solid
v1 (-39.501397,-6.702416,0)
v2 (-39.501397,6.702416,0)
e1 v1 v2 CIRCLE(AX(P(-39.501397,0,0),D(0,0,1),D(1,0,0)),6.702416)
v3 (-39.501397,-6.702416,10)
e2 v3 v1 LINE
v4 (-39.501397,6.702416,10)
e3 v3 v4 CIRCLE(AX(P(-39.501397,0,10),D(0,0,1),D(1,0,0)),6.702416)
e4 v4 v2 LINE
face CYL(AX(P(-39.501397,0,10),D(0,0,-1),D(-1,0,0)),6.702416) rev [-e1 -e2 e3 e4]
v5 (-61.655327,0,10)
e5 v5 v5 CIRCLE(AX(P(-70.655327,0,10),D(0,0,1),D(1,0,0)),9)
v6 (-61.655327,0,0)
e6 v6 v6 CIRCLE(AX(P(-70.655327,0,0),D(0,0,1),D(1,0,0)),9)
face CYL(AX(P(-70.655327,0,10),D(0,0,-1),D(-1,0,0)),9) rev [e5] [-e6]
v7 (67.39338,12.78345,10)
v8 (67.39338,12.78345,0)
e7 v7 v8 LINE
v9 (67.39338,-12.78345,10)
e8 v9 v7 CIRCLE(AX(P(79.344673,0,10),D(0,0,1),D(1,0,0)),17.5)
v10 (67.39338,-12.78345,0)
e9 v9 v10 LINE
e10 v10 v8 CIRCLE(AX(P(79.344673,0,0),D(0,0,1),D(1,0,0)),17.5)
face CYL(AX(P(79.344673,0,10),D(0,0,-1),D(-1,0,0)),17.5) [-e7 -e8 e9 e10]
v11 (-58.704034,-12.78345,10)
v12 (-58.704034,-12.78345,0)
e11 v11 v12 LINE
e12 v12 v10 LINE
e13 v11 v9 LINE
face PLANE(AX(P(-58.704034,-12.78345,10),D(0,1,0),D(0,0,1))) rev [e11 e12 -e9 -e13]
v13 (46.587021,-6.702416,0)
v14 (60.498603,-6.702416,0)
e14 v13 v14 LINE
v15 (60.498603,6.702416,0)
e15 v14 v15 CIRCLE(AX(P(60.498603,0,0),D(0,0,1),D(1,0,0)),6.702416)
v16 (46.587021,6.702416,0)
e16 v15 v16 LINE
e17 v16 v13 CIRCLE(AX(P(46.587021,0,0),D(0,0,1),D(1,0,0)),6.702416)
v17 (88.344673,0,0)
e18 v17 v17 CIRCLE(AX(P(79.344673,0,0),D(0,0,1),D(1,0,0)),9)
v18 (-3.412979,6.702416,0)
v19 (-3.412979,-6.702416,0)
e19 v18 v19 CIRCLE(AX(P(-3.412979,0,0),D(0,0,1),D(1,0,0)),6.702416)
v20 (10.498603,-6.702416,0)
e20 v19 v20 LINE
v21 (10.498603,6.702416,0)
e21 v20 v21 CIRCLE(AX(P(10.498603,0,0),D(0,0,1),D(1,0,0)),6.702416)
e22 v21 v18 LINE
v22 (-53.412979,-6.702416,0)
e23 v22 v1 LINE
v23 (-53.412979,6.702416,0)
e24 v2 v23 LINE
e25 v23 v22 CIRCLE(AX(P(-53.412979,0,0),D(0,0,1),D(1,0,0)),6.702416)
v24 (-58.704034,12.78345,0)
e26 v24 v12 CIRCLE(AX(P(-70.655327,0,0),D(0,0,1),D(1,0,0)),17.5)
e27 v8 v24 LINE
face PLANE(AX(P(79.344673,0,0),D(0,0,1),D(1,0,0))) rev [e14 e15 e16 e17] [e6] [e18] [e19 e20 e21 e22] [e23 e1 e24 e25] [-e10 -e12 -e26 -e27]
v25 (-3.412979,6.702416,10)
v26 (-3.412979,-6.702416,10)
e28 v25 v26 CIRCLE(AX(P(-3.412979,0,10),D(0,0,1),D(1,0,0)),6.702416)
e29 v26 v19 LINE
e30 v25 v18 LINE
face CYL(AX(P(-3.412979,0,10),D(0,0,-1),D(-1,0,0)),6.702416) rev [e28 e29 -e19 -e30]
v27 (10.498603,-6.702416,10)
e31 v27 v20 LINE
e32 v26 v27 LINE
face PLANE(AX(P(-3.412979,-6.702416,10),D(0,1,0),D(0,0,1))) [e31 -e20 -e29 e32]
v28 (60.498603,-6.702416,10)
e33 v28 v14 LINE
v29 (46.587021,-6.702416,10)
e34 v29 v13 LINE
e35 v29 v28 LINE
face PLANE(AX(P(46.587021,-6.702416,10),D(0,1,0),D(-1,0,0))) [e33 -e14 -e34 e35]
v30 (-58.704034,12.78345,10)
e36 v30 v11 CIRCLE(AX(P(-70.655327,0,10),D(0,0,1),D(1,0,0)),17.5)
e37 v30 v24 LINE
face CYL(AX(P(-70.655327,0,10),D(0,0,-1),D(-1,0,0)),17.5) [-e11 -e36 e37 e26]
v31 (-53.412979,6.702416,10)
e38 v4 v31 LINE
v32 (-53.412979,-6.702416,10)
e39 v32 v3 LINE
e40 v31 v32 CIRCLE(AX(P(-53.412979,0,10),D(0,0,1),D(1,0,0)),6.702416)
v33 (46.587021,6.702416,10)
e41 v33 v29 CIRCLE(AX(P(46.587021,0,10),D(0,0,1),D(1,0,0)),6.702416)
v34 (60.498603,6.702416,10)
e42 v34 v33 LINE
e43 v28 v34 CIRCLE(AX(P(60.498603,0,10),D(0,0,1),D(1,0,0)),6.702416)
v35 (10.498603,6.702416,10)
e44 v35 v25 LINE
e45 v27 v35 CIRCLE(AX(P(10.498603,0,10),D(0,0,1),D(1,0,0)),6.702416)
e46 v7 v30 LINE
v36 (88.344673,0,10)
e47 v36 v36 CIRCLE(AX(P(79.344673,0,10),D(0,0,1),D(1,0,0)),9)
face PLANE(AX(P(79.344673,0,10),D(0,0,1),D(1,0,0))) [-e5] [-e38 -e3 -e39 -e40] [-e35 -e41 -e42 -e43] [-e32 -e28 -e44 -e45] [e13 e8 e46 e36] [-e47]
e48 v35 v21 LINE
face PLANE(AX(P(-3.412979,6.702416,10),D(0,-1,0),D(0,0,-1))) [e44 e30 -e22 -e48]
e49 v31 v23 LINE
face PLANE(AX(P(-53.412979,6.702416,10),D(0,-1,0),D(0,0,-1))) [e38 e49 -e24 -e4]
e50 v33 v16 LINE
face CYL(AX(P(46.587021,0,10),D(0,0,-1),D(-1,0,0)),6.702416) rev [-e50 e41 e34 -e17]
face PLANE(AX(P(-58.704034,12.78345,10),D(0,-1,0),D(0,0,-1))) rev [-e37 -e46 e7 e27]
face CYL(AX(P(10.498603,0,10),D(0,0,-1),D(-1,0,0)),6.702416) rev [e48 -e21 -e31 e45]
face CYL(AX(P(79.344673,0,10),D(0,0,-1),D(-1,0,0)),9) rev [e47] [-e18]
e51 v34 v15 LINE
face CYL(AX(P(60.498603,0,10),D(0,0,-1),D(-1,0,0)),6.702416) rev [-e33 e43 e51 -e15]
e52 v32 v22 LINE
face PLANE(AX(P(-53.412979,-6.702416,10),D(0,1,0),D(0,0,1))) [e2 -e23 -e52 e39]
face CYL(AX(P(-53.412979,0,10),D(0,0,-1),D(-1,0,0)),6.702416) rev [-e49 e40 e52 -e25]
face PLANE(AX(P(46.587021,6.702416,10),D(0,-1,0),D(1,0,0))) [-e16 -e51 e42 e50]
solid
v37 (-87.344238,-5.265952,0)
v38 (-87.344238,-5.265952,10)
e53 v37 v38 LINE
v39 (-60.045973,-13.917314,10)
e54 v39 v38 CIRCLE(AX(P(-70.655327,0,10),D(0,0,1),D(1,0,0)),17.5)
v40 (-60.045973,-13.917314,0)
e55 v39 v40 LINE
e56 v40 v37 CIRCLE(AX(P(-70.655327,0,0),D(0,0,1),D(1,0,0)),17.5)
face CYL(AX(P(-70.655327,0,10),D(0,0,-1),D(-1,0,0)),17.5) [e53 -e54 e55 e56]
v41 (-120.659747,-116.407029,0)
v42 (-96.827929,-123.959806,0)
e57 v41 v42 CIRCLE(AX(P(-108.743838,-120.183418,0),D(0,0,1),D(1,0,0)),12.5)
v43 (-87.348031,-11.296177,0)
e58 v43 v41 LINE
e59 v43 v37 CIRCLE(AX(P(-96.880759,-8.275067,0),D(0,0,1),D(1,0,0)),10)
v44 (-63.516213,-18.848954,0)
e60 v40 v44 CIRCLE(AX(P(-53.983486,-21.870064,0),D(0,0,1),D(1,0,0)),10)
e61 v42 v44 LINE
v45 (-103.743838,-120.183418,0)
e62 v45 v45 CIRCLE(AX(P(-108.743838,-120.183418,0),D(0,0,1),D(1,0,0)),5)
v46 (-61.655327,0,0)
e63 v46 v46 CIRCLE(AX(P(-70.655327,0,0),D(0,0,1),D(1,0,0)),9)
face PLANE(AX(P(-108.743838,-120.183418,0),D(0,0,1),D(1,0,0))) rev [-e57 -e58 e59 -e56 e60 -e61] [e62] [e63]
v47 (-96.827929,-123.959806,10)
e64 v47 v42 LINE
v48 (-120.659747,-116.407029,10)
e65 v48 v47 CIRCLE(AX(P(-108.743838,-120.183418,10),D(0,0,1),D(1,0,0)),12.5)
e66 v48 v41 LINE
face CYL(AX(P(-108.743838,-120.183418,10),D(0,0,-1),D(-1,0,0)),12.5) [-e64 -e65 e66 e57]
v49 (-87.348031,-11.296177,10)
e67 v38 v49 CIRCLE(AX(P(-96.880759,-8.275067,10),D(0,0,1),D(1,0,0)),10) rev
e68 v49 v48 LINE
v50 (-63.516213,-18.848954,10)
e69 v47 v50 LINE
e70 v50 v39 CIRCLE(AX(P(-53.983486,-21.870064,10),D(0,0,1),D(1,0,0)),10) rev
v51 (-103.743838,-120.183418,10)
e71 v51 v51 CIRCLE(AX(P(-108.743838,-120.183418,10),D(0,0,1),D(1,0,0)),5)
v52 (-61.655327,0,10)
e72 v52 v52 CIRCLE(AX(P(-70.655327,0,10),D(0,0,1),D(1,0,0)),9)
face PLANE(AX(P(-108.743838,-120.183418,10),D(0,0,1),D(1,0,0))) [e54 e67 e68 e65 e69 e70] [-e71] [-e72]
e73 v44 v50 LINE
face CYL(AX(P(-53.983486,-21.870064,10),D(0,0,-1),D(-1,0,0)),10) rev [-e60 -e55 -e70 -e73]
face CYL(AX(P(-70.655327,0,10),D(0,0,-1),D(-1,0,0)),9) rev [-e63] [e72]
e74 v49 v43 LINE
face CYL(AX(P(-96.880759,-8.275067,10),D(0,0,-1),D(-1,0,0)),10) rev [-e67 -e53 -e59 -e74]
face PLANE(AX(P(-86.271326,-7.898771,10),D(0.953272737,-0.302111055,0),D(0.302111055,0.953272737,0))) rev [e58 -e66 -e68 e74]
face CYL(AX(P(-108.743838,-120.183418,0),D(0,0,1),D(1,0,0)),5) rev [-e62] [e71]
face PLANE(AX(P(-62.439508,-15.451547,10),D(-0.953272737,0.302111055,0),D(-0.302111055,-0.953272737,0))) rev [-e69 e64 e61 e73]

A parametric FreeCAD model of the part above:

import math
import FreeCAD as App
import Part
import Sketcher

V = App.Vector
Q = App.Units.Quantity


def edges_at(feature, points):
    """Names of the edges that pass closest to the given points."""
    edges = feature.Shape.Edges
    near = lambda p: min(range(len(edges)), key=lambda i: edges[i].distToShape(Part.Vertex(*p))[0])
    return sorted({f"Edge{near(p) + 1}" for p in points})

doc = App.newDocument("Part")
body = doc.addObject("PartDesign::Body", "Body")

# Sketch on XY plane
sketch1 = body.newObject("Sketcher::SketchObject", "Sketch")
sketch1.AttachmentSupport = (doc.getObject("XY_Plane"), [""])
sketch1.MapMode = "FlatFace"
sketch1.addGeometry([
    Part.LineSegment(V(67, 13, 0), V(-59, 13, 0)),  # 0
    Part.ArcOfCircle(Part.Circle(V(-71, 0, 0), V(0, 0, 1), 18), math.radians(47), math.radians(313)),  # 1
    Part.LineSegment(V(-59, -13, 0), V(67, -13, 0)),  # 2
    Part.ArcOfCircle(Part.Circle(V(79, 0, 0), V(0, 0, 1), 18), math.radians(-133), math.radians(133)),  # 3
    Part.Circle(V(79, 0, 0), V(0, 0, 1), 9),  # 4
    Part.LineSegment(V(47, 7, 0), V(60, 7, 0)),  # 5
    Part.ArcOfCircle(Part.Circle(V(60, 0, 0), V(0, 0, 1), 7), math.radians(-90), math.radians(90)),  # 6
    Part.LineSegment(V(60, -7, 0), V(47, -7, 0)),  # 7
    Part.ArcOfCircle(Part.Circle(V(47, 0, 0), V(0, 0, 1), 7), math.radians(90), math.radians(270)),  # 8
    Part.LineSegment(V(-3, 7, 0), V(10, 7, 0)),  # 9
    Part.ArcOfCircle(Part.Circle(V(10, 0, 0), V(0, 0, 1), 7), math.radians(-90), math.radians(90)),  # 10
    Part.LineSegment(V(10, -7, 0), V(-3, -7, 0)),  # 11
    Part.ArcOfCircle(Part.Circle(V(-3, 0, 0), V(0, 0, 1), 7), math.radians(90), math.radians(270)),  # 12
    Part.LineSegment(V(-53, 7, 0), V(-40, 7, 0)),  # 13
    Part.ArcOfCircle(Part.Circle(V(-40, 0, 0), V(0, 0, 1), 7), math.radians(-90), math.radians(90)),  # 14
    Part.LineSegment(V(-40, -7, 0), V(-53, -7, 0)),  # 15
    Part.ArcOfCircle(Part.Circle(V(-53, 0, 0), V(0, 0, 1), 7), math.radians(90), math.radians(270)),  # 16
    Part.Circle(V(-71, 0, 0), V(0, 0, 1), 9),  # 17
], False)
sketch1.addConstraint([
    Sketcher.Constraint("Coincident", 0, 2, 1, 1),
    Sketcher.Constraint("Coincident", 1, 2, 2, 1),
    Sketcher.Constraint("Coincident", 2, 2, 3, 1),
    Sketcher.Constraint("Coincident", 3, 2, 0, 1),
    Sketcher.Constraint("Tangent", 5, 2, 6, 2),
    Sketcher.Constraint("Tangent", 6, 1, 7, 1),
    Sketcher.Constraint("Tangent", 7, 2, 8, 2),
    Sketcher.Constraint("Tangent", 8, 1, 5, 1),
    Sketcher.Constraint("Tangent", 9, 2, 10, 2),
    Sketcher.Constraint("Tangent", 10, 1, 11, 1),
    Sketcher.Constraint("Tangent", 11, 2, 12, 2),
    Sketcher.Constraint("Tangent", 12, 1, 9, 1),
    Sketcher.Constraint("Tangent", 13, 2, 14, 2),
    Sketcher.Constraint("Tangent", 14, 1, 15, 1),
    Sketcher.Constraint("Tangent", 15, 2, 16, 2),
    Sketcher.Constraint("Tangent", 16, 1, 13, 1),
    Sketcher.Constraint("Horizontal", 0),
    Sketcher.Constraint("Horizontal", 2),
    Sketcher.Constraint("Horizontal", 5),
    Sketcher.Constraint("Horizontal", 7),
    Sketcher.Constraint("Horizontal", 9),
    Sketcher.Constraint("Horizontal", 11),
    Sketcher.Constraint("Horizontal", 13),
    Sketcher.Constraint("Horizontal", 15),
    Sketcher.Constraint("Coincident", 4, 3, 3, 3),
    Sketcher.Constraint("Coincident", 17, 3, 1, 3),
    Sketcher.Constraint("Equal", 1, 3),
    Sketcher.Constraint("Equal", 8, 10),
    Sketcher.Constraint("Equal", 12, 14),
    Sketcher.Constraint("Equal", 4, 17),
    Sketcher.Constraint("Symmetric", 0, 2, 1, 2, -1),
    Sketcher.Constraint("PointOnObject", 3, 3, -1),
    Sketcher.Constraint("PointOnObject", 6, 3, -1),
    Sketcher.Constraint("PointOnObject", 10, 3, -1),
    Sketcher.Constraint("PointOnObject", 14, 3, -1),
    Sketcher.Constraint("Equal", 7, 9),
    Sketcher.Constraint("Equal", 11, 13),
    Sketcher.Constraint("Diameter", 4, Q("18 mm")),
    Sketcher.Constraint("Radius", 1, Q("17.5 mm")),
    Sketcher.Constraint("DistanceX", 1, 3, 3, 3, Q("150 mm")),
    Sketcher.Constraint("DistanceX", 10, 3, 6, 3, Q("50 mm")),
    Sketcher.Constraint("DistanceX", 14, 3, 10, 3, Q("50 mm")),
    Sketcher.Constraint("Radius", 6, Q("6.702416 mm")),
    Sketcher.Constraint("DistanceX", 5, 1, 5, 2, Q("13.911582 mm")),
    Sketcher.Constraint("DistanceY", 1, 2, 0, 2, Q("25.566901 mm")),
    Sketcher.Constraint("DistanceX", -1, 1, 8, 3, Q("46.587021 mm")),
    Sketcher.Constraint("DistanceX", -1, 1, 2, 2, Q("67.39338 mm")),
])
pad1 = body.newObject("PartDesign::Pad", "Pad")
pad1.Profile = sketch1
pad1.Length = 10
body2 = doc.addObject("PartDesign::Body", "Body001")

# Sketch on XY plane
sketch2 = body2.newObject("Sketcher::SketchObject", "Sketch001")
sketch2.AttachmentSupport = (doc.getObject("XY_Plane001"), [""])
sketch2.MapMode = "FlatFace"
sketch2.addGeometry([
    Part.LineSegment(V(-97, -124, 0), V(-62, -15, 0)),  # 0
    Part.ArcOfCircle(Part.Circle(V(-71, 0, 0), V(0, 0, 1), 18), math.radians(-62), math.radians(207)),  # 1
    Part.LineSegment(V(-86, -8, 0), V(-121, -116, 0)),  # 2
    Part.ArcOfCircle(Part.Circle(V(-109, -120, 0), V(0, 0, 1), 12), math.radians(162), math.radians(342)),  # 3
    Part.Circle(V(-71, 0, 0), V(0, 0, 1), 9),  # 4
], False)
sketch2.addConstraint([
    Sketcher.Constraint("Coincident", 0, 2, 1, 1),
    Sketcher.Constraint("Coincident", 1, 2, 2, 1),
    Sketcher.Constraint("Tangent", 2, 2, 3, 1),
    Sketcher.Constraint("Tangent", 3, 2, 0, 1),
    Sketcher.Constraint("Coincident", 4, 3, 1, 3),
    Sketcher.Constraint("PointOnObject", 1, 3, -1),
    Sketcher.Constraint("Parallel", 0, 2),
    Sketcher.Constraint("Equal", 0, 2),
    Sketcher.Constraint("Diameter", 4, Q("18 mm")),
    Sketcher.Constraint("Radius", 1, Q("17.5 mm")),
    Sketcher.Constraint("Radius", 3, Q("12.5 mm")),
    Sketcher.Constraint("DistanceX", 1, 2, 1, 3, Q("15.615999 mm")),
    Sketcher.Constraint("DistanceX", 3, 2, 1, 3, Q("26.172602 mm")),
    Sketcher.Constraint("DistanceX", 3, 3, -1, 1, Q("108.743838 mm")),
])
pad2 = body2.newObject("PartDesign::Pad", "Pad001")
pad2.Profile = sketch2
pad2.Length = 10

# Sketch on XY plane
sketch3 = body2.newObject("Sketcher::SketchObject", "Sketch002")
sketch3.AttachmentSupport = (doc.getObject("XY_Plane001"), [""])
sketch3.MapMode = "FlatFace"
sketch3.AttachmentOffset = App.Placement(V(0, 0, 10), App.Rotation())
sketch3.addGeometry(Part.Circle(V(-109, -120, 0), V(0, 0, 1), 5), False)
sketch3.addConstraint([
    Sketcher.Constraint("Diameter", 0, Q("10 mm")),
    Sketcher.Constraint("DistanceX", 0, 3, -1, 1, Q("108.743838 mm")),
    Sketcher.Constraint("DistanceY", 0, 3, -1, 1, Q("120.183418 mm")),
])
pocket1 = body2.newObject("PartDesign::Pocket", "Pocket")
pocket1.Profile = sketch3
pocket1.Length = 10
doc.recompute()

fillet = body2.newObject("PartDesign::Fillet", "Fillet")
fillet.Base = (pocket1, edges_at(pocket1, [(-86.271, -7.899, 5), (-62.44, -15.452, 5)]))
fillet.Radius = 10

doc.recompute()
